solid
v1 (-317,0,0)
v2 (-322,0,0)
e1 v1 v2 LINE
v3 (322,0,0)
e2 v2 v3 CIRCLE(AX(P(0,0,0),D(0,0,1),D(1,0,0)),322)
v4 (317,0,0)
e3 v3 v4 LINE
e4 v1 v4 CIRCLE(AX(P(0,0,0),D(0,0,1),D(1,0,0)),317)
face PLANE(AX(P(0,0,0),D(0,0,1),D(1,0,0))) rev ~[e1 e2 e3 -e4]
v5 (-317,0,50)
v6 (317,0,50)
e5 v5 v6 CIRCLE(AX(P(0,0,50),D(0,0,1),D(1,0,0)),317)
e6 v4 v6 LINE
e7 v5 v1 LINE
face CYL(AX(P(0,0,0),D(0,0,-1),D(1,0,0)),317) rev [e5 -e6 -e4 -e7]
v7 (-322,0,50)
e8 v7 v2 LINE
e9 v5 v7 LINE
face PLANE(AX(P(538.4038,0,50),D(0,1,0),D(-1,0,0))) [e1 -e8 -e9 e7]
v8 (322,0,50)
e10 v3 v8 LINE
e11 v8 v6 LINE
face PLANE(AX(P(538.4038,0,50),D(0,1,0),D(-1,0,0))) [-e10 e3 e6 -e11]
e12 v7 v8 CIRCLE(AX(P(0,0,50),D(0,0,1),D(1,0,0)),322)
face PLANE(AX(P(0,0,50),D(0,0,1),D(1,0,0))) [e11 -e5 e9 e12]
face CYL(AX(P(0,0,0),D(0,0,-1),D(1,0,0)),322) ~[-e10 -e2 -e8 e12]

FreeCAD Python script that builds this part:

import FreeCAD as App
import Part
import Sketcher

doc = App.newDocument("Part")
body = doc.addObject("PartDesign::Body", "Body")

# Sketch on XY plane
sketch1 = body.newObject("Sketcher::SketchObject", "Sketch")
sketch1.AttachmentSupport = (doc.getObject("XY_Plane"), [""])
sketch1.MapMode = "FlatFace"
sketch1.addGeometry(Part.Circle(App.Vector(0, 0, 0), App.Vector(0, 0, 1), 322), False)
sketch1.addGeometry(Part.Circle(App.Vector(0, 0, 0), App.Vector(0, 0, 1), 317), False)
sketch1.addConstraint(Sketcher.Constraint("Coincident", 0, 3, -1, 1))
sketch1.addConstraint(Sketcher.Constraint("Coincident", 1, 3, -1, 1))
sketch1.addConstraint(Sketcher.Constraint("Diameter", 0, 644.0))
sketch1.addConstraint(Sketcher.Constraint("Diameter", 1, 634.0))
pad1 = body.newObject("PartDesign::Pad", "Pad")
pad1.Profile = sketch1
pad1.Length = 50

# Sketch on XY plane
sketch2 = body.newObject("Sketcher::SketchObject", "Sketch001")
sketch2.AttachmentSupport = (doc.getObject("XY_Plane"), [""])
sketch2.MapMode = "FlatFace"
sketch2.AttachmentOffset = App.Placement(App.Vector(0, 0, 50), App.Rotation())
sketch2.addGeometry(Part.LineSegment(App.Vector(538.4038, 349.6941, 0), App.Vector(-488.5314, 349.6941, 0)), False)
sketch2.addGeometry(Part.LineSegment(App.Vector(-488.5314, 349.6941, 0), App.Vector(-488.5314, 0, 0)), False)
sketch2.addGeometry(Part.LineSegment(App.Vector(-488.5314, 0, 0), App.Vector(538.4038, 0, 0)), False)
sketch2.addGeometry(Part.LineSegment(App.Vector(538.4038, 0, 0), App.Vector(538.4038, 349.6941, 0)), False)
sketch2.addConstraint(Sketcher.Constraint("Coincident", 0, 2, 1, 1))
sketch2.addConstraint(Sketcher.Constraint("Coincident", 1, 2, 2, 1))
sketch2.addConstraint(Sketcher.Constraint("Coincident", 2, 2, 3, 1))
sketch2.addConstraint(Sketcher.Constraint("Coincident", 3, 2, 0, 1))
sketch2.addConstraint(Sketcher.Constraint("Horizontal", 0))
sketch2.addConstraint(Sketcher.Constraint("Vertical", 1))
sketch2.addConstraint(Sketcher.Constraint("Horizontal", 2))
sketch2.addConstraint(Sketcher.Constraint("Vertical", 3))
sketch2.addConstraint(Sketcher.Constraint("PointOnObject", 1, 2, -1))
sketch2.addConstraint(Sketcher.Constraint("DistanceY", 1, 2, 1, 1, 349.694))
sketch2.addConstraint(Sketcher.Constraint("DistanceX", 0, 2, 0, 1, 1026.9352))
sketch2.addConstraint(Sketcher.Constraint("DistanceX", 0, 2, -1, 1, 488.5314))
pocket1 = body.newObject("PartDesign::Pocket", "Pocket")
pocket1.Profile = sketch2
pocket1.Length = 50

doc.recompute()
